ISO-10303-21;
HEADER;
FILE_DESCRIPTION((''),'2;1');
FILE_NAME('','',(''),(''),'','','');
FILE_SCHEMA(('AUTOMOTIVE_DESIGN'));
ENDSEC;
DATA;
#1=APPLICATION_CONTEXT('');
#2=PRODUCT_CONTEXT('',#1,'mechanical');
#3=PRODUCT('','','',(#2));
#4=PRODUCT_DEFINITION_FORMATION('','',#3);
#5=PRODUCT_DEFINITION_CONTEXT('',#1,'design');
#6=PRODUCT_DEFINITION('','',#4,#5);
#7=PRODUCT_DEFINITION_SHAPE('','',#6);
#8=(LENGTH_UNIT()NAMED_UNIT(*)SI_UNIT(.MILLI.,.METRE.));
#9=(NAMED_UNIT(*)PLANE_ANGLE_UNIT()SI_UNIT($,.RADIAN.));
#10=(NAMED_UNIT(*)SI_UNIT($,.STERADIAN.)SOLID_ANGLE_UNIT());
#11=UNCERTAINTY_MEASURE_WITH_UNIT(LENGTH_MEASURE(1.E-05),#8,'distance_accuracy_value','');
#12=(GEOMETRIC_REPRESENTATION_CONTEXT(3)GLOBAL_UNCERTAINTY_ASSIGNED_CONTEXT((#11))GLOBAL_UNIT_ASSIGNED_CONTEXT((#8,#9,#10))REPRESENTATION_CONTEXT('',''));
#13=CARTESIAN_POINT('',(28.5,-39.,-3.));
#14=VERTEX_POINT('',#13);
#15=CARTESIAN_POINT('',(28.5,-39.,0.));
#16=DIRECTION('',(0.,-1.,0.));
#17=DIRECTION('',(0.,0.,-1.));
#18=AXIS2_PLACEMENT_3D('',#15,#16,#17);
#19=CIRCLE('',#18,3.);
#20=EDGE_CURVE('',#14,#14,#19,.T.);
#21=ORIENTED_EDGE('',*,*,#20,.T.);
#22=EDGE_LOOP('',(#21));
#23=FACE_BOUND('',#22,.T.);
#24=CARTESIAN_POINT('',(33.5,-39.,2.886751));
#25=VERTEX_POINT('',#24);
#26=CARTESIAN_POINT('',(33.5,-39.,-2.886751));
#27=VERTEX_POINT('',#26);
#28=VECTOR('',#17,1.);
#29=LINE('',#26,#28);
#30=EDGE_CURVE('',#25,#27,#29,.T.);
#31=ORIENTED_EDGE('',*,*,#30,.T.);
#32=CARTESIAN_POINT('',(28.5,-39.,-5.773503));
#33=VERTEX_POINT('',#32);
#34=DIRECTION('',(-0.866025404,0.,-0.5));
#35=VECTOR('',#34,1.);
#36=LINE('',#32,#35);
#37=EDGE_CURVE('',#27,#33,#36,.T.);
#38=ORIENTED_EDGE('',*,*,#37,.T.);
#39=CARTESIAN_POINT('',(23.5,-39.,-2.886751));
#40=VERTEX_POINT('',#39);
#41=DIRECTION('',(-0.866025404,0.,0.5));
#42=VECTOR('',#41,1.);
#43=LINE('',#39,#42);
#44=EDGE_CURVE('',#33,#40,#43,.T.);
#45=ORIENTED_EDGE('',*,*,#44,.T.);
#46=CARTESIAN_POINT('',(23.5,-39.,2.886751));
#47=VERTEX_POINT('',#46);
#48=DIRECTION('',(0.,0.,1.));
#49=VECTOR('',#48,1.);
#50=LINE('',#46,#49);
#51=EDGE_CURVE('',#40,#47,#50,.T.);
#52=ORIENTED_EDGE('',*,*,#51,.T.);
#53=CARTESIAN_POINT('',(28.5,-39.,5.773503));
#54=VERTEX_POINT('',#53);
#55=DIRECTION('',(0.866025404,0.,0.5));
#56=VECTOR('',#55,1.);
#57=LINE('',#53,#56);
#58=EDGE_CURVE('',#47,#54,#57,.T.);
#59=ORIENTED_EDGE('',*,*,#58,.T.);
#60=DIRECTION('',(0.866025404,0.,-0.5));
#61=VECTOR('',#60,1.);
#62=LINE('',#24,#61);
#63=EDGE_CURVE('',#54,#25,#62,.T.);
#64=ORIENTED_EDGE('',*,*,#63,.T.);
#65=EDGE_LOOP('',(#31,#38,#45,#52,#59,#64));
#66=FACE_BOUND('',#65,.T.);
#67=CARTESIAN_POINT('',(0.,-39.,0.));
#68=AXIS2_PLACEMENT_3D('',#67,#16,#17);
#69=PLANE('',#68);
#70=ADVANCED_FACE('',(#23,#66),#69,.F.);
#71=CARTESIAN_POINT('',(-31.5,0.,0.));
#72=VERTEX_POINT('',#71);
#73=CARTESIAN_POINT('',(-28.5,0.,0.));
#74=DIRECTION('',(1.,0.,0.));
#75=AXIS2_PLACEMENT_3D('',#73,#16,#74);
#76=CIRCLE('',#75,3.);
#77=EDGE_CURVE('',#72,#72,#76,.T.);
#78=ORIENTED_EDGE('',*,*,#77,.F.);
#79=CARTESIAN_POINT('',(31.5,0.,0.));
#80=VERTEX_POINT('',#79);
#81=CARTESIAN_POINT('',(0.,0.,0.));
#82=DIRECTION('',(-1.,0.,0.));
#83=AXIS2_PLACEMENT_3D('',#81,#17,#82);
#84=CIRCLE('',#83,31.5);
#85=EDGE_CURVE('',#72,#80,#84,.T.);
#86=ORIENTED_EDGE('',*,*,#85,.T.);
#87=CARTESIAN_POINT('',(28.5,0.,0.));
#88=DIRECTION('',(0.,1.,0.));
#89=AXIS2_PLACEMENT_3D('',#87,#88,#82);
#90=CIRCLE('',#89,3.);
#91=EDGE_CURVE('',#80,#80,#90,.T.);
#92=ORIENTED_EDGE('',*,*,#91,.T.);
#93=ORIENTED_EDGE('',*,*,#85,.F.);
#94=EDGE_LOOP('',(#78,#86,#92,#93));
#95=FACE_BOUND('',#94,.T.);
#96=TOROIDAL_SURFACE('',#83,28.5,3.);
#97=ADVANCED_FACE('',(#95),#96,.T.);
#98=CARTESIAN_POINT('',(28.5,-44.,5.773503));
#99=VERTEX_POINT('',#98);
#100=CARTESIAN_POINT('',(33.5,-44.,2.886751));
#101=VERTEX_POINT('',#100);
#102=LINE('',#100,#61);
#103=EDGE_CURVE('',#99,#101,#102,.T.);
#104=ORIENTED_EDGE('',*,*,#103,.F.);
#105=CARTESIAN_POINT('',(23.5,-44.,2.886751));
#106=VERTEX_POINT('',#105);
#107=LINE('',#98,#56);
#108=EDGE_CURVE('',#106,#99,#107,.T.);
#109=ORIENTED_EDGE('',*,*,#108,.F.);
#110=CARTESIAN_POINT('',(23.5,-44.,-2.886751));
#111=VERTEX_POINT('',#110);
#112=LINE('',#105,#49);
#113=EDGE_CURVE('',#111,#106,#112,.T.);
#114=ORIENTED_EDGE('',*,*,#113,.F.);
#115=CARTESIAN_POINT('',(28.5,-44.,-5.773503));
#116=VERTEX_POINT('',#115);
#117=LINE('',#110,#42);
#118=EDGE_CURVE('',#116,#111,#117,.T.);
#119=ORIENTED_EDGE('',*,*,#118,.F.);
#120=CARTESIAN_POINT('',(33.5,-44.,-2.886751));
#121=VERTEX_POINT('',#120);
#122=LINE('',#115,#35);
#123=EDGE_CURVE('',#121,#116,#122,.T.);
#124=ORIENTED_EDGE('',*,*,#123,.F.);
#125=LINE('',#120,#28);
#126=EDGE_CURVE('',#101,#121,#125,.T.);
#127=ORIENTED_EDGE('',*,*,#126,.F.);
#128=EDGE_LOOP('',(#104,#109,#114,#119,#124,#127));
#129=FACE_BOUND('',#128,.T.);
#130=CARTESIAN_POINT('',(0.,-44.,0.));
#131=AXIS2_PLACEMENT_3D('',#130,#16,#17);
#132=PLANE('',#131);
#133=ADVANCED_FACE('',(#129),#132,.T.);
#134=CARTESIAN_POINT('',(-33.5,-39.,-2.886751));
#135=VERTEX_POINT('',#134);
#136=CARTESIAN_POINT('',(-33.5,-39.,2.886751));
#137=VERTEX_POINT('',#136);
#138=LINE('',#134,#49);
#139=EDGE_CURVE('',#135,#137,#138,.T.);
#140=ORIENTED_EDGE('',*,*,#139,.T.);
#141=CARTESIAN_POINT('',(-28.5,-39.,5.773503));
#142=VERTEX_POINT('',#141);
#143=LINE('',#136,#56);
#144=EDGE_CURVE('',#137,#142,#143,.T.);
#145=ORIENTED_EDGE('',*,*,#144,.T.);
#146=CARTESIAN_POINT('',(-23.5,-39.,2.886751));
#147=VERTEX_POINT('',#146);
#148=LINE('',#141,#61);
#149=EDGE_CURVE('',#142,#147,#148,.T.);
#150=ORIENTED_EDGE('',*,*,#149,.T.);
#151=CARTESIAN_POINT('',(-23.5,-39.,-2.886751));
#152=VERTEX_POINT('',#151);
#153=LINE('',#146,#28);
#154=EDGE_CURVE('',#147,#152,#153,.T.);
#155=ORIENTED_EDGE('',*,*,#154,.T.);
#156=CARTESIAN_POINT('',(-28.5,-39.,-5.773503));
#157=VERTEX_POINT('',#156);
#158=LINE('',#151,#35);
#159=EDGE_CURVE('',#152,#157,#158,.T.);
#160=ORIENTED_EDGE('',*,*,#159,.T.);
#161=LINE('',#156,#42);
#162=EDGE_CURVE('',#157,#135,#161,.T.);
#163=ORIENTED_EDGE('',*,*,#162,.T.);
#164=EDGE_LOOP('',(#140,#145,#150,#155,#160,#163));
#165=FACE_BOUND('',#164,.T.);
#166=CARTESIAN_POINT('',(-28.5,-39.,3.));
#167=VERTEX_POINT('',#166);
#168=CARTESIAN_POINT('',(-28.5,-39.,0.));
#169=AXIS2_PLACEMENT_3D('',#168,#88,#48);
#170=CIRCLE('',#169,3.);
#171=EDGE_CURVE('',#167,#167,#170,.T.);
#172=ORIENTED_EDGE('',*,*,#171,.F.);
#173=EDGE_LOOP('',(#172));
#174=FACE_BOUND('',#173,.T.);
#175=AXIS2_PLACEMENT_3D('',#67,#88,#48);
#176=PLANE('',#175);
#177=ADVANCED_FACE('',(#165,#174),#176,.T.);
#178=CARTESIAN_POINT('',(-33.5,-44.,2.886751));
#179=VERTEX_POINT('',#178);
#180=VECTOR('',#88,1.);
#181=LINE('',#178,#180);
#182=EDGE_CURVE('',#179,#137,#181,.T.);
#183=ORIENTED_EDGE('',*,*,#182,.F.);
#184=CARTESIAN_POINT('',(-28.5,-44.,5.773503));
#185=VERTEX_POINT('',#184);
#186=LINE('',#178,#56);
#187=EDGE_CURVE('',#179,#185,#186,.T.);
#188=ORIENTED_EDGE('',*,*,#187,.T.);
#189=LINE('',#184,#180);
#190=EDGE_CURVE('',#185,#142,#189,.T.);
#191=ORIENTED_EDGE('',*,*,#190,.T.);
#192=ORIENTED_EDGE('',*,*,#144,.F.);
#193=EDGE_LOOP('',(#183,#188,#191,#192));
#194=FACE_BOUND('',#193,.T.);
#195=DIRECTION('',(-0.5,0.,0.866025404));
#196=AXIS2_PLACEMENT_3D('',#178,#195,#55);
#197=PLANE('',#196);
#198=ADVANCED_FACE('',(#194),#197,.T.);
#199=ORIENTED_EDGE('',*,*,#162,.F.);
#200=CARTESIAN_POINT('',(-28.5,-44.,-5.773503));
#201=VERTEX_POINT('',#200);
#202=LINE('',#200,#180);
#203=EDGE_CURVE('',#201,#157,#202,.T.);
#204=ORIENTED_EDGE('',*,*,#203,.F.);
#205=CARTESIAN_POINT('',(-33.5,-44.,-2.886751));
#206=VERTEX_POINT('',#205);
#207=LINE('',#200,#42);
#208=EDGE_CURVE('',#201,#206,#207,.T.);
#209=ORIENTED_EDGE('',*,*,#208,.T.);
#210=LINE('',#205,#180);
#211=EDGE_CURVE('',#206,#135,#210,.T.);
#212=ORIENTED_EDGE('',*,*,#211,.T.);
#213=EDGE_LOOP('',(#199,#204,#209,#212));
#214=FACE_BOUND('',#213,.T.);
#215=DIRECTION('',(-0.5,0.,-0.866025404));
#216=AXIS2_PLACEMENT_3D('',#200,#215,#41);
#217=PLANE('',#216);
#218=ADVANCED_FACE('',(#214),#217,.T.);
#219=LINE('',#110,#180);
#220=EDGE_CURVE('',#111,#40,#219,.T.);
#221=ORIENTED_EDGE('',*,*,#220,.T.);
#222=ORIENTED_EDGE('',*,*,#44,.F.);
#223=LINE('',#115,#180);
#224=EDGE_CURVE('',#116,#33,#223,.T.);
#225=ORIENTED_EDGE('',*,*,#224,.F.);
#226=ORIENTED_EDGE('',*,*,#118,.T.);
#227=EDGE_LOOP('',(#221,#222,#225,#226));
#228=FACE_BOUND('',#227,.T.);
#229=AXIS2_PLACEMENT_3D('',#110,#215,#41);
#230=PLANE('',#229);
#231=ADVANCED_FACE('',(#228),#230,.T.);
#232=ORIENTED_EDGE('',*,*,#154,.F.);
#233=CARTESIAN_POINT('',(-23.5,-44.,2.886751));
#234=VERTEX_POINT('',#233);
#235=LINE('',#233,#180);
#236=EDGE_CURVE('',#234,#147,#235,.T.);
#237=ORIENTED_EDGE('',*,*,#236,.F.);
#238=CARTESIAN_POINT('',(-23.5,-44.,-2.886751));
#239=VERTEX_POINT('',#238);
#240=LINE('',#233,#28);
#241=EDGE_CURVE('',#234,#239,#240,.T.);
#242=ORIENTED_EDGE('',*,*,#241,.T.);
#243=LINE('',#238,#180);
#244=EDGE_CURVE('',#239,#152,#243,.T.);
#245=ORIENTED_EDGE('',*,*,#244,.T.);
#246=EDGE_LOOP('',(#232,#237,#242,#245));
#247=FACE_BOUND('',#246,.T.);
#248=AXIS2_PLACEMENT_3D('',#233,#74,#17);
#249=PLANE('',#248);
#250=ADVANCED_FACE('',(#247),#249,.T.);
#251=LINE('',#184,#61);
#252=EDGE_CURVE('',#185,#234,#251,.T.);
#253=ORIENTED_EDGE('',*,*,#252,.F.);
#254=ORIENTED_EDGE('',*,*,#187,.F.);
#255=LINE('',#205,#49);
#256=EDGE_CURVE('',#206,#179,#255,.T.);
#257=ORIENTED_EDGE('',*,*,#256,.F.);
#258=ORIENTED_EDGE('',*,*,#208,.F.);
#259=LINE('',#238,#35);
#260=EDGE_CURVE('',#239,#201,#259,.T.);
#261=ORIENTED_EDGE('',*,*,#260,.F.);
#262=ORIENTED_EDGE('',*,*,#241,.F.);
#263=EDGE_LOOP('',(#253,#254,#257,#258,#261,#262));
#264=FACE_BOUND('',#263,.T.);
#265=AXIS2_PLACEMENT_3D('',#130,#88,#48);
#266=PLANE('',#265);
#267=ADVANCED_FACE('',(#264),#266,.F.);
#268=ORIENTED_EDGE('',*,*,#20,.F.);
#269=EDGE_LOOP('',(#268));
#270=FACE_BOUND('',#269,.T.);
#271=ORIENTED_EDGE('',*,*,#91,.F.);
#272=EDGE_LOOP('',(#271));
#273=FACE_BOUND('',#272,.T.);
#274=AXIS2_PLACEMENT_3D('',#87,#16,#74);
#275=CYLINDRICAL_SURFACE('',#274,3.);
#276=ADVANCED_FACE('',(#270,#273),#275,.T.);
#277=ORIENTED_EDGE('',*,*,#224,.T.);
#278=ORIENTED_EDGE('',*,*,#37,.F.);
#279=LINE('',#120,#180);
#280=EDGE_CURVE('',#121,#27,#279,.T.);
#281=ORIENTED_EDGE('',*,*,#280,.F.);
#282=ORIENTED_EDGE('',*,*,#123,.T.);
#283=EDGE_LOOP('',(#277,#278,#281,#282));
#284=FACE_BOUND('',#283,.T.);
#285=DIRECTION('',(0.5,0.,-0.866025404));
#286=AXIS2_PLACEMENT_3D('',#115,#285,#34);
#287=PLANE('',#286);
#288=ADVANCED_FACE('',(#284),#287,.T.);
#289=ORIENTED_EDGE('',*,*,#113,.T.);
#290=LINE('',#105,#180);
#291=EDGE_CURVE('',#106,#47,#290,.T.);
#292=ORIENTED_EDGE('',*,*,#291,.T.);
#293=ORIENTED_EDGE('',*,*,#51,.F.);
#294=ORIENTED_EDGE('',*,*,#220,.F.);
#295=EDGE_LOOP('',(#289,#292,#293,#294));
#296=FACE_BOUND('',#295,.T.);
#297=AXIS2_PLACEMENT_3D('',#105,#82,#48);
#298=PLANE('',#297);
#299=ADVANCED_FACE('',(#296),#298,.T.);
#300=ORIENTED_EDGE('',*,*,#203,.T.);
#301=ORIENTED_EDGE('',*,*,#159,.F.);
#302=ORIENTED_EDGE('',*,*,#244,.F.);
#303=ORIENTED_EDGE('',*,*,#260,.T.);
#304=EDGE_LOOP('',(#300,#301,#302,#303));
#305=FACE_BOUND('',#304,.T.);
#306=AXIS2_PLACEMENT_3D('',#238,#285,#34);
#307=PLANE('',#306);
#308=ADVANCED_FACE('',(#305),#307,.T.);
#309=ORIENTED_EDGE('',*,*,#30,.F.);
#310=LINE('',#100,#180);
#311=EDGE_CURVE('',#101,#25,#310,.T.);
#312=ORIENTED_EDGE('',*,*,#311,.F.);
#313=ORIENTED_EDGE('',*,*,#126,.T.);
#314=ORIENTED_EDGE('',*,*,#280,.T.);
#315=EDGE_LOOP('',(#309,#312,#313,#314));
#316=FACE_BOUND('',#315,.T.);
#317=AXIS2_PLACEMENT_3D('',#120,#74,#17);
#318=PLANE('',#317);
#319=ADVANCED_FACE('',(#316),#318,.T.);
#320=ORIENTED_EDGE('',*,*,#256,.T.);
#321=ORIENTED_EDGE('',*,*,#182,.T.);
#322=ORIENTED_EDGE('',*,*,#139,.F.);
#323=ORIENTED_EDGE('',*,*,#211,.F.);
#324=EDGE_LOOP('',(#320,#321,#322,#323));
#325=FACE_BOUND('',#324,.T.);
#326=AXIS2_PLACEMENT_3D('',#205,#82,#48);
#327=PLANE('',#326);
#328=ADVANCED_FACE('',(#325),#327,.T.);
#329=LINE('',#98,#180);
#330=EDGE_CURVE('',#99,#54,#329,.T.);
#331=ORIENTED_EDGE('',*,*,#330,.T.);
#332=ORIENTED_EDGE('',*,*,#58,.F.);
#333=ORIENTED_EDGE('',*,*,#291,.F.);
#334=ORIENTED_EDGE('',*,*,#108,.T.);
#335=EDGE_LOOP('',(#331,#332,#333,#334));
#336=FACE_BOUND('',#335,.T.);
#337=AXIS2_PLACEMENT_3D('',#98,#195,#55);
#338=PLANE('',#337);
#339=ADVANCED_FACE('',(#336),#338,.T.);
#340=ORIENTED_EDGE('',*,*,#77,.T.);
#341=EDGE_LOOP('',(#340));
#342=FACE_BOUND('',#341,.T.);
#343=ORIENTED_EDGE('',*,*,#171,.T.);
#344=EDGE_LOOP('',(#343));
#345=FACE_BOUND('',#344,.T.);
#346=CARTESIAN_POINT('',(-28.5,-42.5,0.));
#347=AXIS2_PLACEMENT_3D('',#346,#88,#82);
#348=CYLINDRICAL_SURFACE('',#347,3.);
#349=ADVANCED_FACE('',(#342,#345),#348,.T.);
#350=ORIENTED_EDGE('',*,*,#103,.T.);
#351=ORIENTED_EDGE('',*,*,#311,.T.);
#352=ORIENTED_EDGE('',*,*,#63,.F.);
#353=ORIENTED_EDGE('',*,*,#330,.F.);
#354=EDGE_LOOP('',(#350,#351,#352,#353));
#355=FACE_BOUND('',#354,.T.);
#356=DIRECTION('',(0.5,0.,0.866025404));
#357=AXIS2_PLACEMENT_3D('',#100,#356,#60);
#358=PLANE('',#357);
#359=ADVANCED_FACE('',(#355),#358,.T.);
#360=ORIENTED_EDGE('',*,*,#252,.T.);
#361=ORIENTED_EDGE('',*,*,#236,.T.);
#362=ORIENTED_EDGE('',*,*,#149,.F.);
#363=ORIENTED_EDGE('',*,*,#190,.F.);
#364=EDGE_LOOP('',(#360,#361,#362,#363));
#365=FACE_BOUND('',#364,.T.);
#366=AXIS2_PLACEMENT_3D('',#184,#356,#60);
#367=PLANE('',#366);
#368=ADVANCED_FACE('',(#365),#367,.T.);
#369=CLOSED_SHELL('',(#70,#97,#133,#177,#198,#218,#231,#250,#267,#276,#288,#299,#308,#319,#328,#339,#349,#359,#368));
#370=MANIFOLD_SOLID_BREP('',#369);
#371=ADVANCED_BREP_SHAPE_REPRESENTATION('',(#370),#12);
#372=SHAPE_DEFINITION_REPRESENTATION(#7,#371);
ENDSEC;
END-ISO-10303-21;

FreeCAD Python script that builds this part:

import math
import FreeCAD as App
import Part
import Sketcher

V = App.Vector
Q = App.Units.Quantity


def add_polygon(sketch, points):
    """Adds a closed chain of lines whose ends are joined by coincident constraints."""
    first, n = sketch.GeometryCount, len(points)
    for a, b in zip(points, points[1:] + points[:1]):
        sketch.addGeometry(Part.LineSegment(App.Vector(*a, 0), App.Vector(*b, 0)), False)
    for i in range(n):
        sketch.addConstraint(Sketcher.Constraint("Coincident", first + i, 2, first + (i + 1) % n, 1))

doc = App.newDocument("Part")
body = doc.addObject("PartDesign::Body", "Body")

# Sketch on XZ plane
sketch1 = body.newObject("Sketcher::SketchObject", "Sketch")
sketch1.AttachmentSupport = (doc.getObject("XZ_Plane"), [""])
sketch1.MapMode = "FlatFace"
sketch1.AttachmentOffset = App.Placement(V(0, 0, 42.5), App.Rotation())
sketch1.addGeometry(Part.Circle(V(-28.5, 0, 0), V(0, 0, 1), 3), False)
sketch1.addConstraint([
    Sketcher.Constraint("PointOnObject", 0, 3, -1),
    Sketcher.Constraint("Diameter", 0, Q("6 mm")),
    Sketcher.Constraint("DistanceX", 0, 3, -1, 1, Q("28.5 mm")),
])

# Sketch on XY plane
sketch2 = body.newObject("Sketcher::SketchObject", "Sketch001")
sketch2.AttachmentSupport = (doc.getObject("XY_Plane"), [""])
sketch2.MapMode = "FlatFace"
sketch2.addGeometry([
    Part.LineSegment(V(-28.5, -42.5, 0), V(-28.5, 0, 0)),
    Part.ArcOfCircle(Part.Circle(V(0, 0, 0), V(0, 0, 1), 28.5), math.radians(0), math.radians(180)),
    Part.LineSegment(V(28.5, 0, 0), V(28.5, -42.5, 0)),
], False)
sketch2.addConstraint([
    Sketcher.Constraint("Tangent", 0, 2, 1, 2),
    Sketcher.Constraint("Tangent", 1, 1, 2, 1),
    Sketcher.Constraint("Vertical", 0),
    Sketcher.Constraint("Vertical", 2),
    Sketcher.Constraint("Coincident", 1, 3, -1, 1),
    Sketcher.Constraint("Horizontal", 0, 1, 2, 2),
    Sketcher.Constraint("Radius", 1, Q("28.5 mm")),
    Sketcher.Constraint("DistanceY", 0, 1, 0, 2, Q("42.5 mm")),
])
doc.recompute()

additivepipe = body.newObject("PartDesign::AdditivePipe", "AdditivePipe")
additivepipe.Profile = sketch1
additivepipe.Spine = (sketch2, ["Edge1", "Edge2", "Edge3"])

# Sketch on XZ plane
sketch3 = body.newObject("Sketcher::SketchObject", "Sketch002")
sketch3.AttachmentSupport = (doc.getObject("XZ_Plane"), [""])
sketch3.MapMode = "FlatFace"
sketch3.AttachmentOffset = App.Placement(V(0, 0, 39), App.Rotation())
add_polygon(sketch3, [(-28.5, -5.773503), (-33.5, -2.886751), (-33.5, 2.886751), (-28.5, 5.773503), (-23.5, 2.886751), (-23.5, -2.886751)])  # lines 0-5
add_polygon(sketch3, [(28.5, -5.773503), (23.5, -2.886751), (23.5, 2.886751), (28.5, 5.773503), (33.5, 2.886751), (33.5, -2.886751)])  # lines 6-11
sketch3.addConstraint([
    Sketcher.Constraint("Vertical", 1),
    Sketcher.Constraint("Vertical", 4),
    Sketcher.Constraint("Vertical", 7),
    Sketcher.Constraint("Vertical", 10),
    Sketcher.Constraint("Symmetric", 3, 2, 6, 2, -1, 1),
    Sketcher.Constraint("Symmetric", 5, 2, 8, 2, -1, 1),
    Sketcher.Constraint("Symmetric", 0, 2, 9, 2, -1, 1),
    Sketcher.Constraint("Symmetric", 2, 2, 11, 2, -1, 1),
    Sketcher.Constraint("Symmetric", 2, 2, 8, 2, -2),
    Sketcher.Constraint("Parallel", 0, 3),
    Sketcher.Constraint("Parallel", 2, 5),
    Sketcher.Constraint("Parallel", 5, 8),
    Sketcher.Constraint("Parallel", 8, 11),
    Sketcher.Constraint("Horizontal", 1, 2, 3, 2),
    Sketcher.Constraint("Horizontal", 0, 2, 4, 2),
    Sketcher.Constraint("Angle", 0, Q("150 deg")),
    Sketcher.Constraint("DistanceX", 1, 2, 2, 2, Q("5 mm")),
    Sketcher.Constraint("DistanceX", 4, 2, 6, 2, Q("47 mm")),
    Sketcher.Constraint("DistanceY", 1, 1, 1, 2, Q("5.773503 mm")),
])
pad1 = body.newObject("PartDesign::Pad", "Pad")
pad1.Profile = sketch3
pad1.Length = 5

doc.recompute()
